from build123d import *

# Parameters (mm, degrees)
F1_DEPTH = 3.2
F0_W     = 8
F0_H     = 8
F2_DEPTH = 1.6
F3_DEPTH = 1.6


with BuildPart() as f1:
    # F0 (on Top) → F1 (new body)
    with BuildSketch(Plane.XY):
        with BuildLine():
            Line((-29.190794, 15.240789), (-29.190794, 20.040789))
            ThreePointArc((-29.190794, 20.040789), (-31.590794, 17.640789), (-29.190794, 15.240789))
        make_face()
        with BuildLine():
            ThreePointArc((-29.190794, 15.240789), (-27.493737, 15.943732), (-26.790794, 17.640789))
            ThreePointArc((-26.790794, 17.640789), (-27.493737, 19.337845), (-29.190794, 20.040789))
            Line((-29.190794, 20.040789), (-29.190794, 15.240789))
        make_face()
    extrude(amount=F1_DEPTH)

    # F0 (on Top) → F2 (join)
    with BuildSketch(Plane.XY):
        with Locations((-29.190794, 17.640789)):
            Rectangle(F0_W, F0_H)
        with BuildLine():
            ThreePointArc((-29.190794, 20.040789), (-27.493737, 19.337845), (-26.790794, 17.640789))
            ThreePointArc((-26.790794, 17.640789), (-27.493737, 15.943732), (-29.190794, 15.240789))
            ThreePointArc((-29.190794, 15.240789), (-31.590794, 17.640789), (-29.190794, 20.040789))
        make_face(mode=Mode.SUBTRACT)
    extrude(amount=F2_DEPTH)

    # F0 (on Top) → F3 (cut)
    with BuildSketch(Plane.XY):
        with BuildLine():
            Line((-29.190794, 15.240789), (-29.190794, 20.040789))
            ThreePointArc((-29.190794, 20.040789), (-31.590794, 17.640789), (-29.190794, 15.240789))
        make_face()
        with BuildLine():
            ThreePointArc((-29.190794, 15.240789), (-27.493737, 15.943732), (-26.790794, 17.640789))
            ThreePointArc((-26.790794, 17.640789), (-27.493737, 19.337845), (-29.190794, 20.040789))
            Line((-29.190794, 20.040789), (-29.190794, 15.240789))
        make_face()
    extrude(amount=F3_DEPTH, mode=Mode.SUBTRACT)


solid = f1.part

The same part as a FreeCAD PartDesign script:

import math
import FreeCAD as App
import Part
import Sketcher
Q = App.Units.Quantity


def add_polygon(sketch, points):
    """Adds a closed chain of lines whose ends are joined by coincident constraints."""
    first, n = sketch.GeometryCount, len(points)
    for a, b in zip(points, points[1:] + points[:1]):
        sketch.addGeometry(Part.LineSegment(App.Vector(*a, 0), App.Vector(*b, 0)), False)
    for i in range(n):
        sketch.addConstraint(Sketcher.Constraint("Coincident", first + i, 2, first + (i + 1) % n, 1))

doc = App.newDocument("Part")
params = doc.addObject("Spreadsheet::Sheet", "Params")
for row, (alias, value) in enumerate([
    ("sketch1_radius", "2.4 mm"),
    ("pad1_length", "3.2 mm"),
    ("sketch2_radius", "2.4 mm"),
    ("sketch2_width", "8 mm"),
    ("pad2_length", "1.6 mm"),
    ("sketch3_radius", "2.4 mm"),
    ("pocket1_length", "1.6 mm"),
], start=1):
    params.set(f"A{row}", alias)
    params.set(f"B{row}", "=" + value)
    params.setAlias(f"B{row}", alias)

body = doc.addObject("PartDesign::Body", "Body")
body.AllowCompound = True

# Sketch on XY plane
sketch1 = body.newObject("Sketcher::SketchObject", "Sketch")
sketch1.AttachmentSupport = (doc.getObject("XY_Plane"), [""])
sketch1.MapMode = "FlatFace"
sketch1.addGeometry(Part.ArcOfCircle(Part.Circle(App.Vector(-29.190794, 17.640789, 0), App.Vector(0, 0, 1), 2.4), math.radians(90), math.radians(270)), False)
sketch1.addGeometry(Part.ArcOfCircle(Part.Circle(App.Vector(-29.190792, 17.640787, 0), App.Vector(0, 0, 1), 2.399998), math.radians(-90.000059), math.radians(0.000059)), False)
sketch1.addGeometry(Part.ArcOfCircle(Part.Circle(App.Vector(-29.190793, 17.64079, 0), App.Vector(0, 0, 1), 2.399999), math.radians(-0.000018), math.radians(90.000018)), False)
sketch1.addConstraint(Sketcher.Constraint("Tangent", 0, 2, 1, 1))
sketch1.addConstraint(Sketcher.Constraint("Tangent", 1, 2, 2, 1))
sketch1.addConstraint(Sketcher.Constraint("Tangent", 2, 2, 0, 1))
sketch1.addConstraint(Sketcher.Constraint("Horizontal", 2, 3, 1, 2))
sketch1.addConstraint(Sketcher.Constraint("Vertical", 2, 3, 0, 2))
sketch1.addConstraint(Sketcher.Constraint("Vertical", 0, 2, 2, 2))
sketch1.addConstraint(Sketcher.Constraint("Radius", 0, Q("2.4 mm")))
sketch1.addConstraint(Sketcher.Constraint("DistanceY", -1, 1, 0, 3, Q("17.640789 mm")))
sketch1.addConstraint(Sketcher.Constraint("DistanceX", 1, 3, -1, 1, Q("29.190792 mm")))
sketch1.setExpression("Constraints[6]", "Params.sketch1_radius")
pad1 = body.newObject("PartDesign::Pad", "Pad")
pad1.Profile = sketch1
pad1.setExpression("Length", "Params.pad1_length")

# Sketch on XY plane
sketch2 = body.newObject("Sketcher::SketchObject", "Sketch001")
sketch2.AttachmentSupport = (doc.getObject("XY_Plane"), [""])
sketch2.MapMode = "FlatFace"
add_polygon(sketch2, [(-33.190794, 21.640789), (-33.190794, 13.640789), (-25.190794, 13.640789), (-25.190794, 21.640789)])  # lines 0-3
sketch2.addGeometry(Part.ArcOfCircle(Part.Circle(App.Vector(-29.190794, 17.640789, 0), App.Vector(0, 0, 1), 2.4), math.radians(90), math.radians(270)), False)  # 4
sketch2.addGeometry(Part.ArcOfCircle(Part.Circle(App.Vector(-29.190793, 17.64079, 0), App.Vector(0, 0, 1), 2.399999), math.radians(-0.000018), math.radians(90.000018)), False)  # 5
sketch2.addGeometry(Part.ArcOfCircle(Part.Circle(App.Vector(-29.190792, 17.640787, 0), App.Vector(0, 0, 1), 2.399998), math.radians(-90.000059), math.radians(0.000059)), False)  # 6
sketch2.addConstraint(Sketcher.Constraint("Tangent", 4, 1, 5, 2))
sketch2.addConstraint(Sketcher.Constraint("Tangent", 5, 1, 6, 2))
sketch2.addConstraint(Sketcher.Constraint("Tangent", 6, 1, 4, 2))
sketch2.addConstraint(Sketcher.Constraint("Vertical", 0))
sketch2.addConstraint(Sketcher.Constraint("Horizontal", 1))
sketch2.addConstraint(Sketcher.Constraint("Vertical", 2))
sketch2.addConstraint(Sketcher.Constraint("Horizontal", 3))
sketch2.addConstraint(Sketcher.Constraint("Horizontal", 4, 3, 5, 1))
sketch2.addConstraint(Sketcher.Constraint("Vertical", 5, 3, 4, 1))
sketch2.addConstraint(Sketcher.Constraint("Vertical", 4, 1, 6, 1))
sketch2.addConstraint(Sketcher.Constraint("Equal", 3, 0))
sketch2.addConstraint(Sketcher.Constraint("Radius", 4, Q("2.4 mm")))
sketch2.addConstraint(Sketcher.Constraint("DistanceX", 1, 1, 1, 2, Q("8 mm")))
sketch2.addConstraint(Sketcher.Constraint("DistanceX", 0, 2, 4, 3, Q("4 mm")))
sketch2.addConstraint(Sketcher.Constraint("DistanceY", 0, 2, 4, 3, Q("4 mm")))
sketch2.addConstraint(Sketcher.Constraint("DistanceY", -1, 1, 4, 3, Q("17.640789 mm")))
sketch2.addConstraint(Sketcher.Constraint("DistanceX", 6, 3, -1, 1, Q("29.190792 mm")))
sketch2.setExpression("Constraints[15]", "Params.sketch2_radius")
sketch2.setExpression("Constraints[16]", "Params.sketch2_width")
pad2 = body.newObject("PartDesign::Pad", "Pad001")
pad2.Profile = sketch2
pad2.setExpression("Length", "Params.pad2_length")

# Sketch on XY plane
sketch3 = body.newObject("Sketcher::SketchObject", "Sketch002")
sketch3.AttachmentSupport = (doc.getObject("XY_Plane"), [""])
sketch3.MapMode = "FlatFace"
sketch3.addGeometry(Part.ArcOfCircle(Part.Circle(App.Vector(-29.190794, 17.640789, 0), App.Vector(0, 0, 1), 2.4), math.radians(90), math.radians(270)), False)
sketch3.addGeometry(Part.ArcOfCircle(Part.Circle(App.Vector(-29.190792, 17.640787, 0), App.Vector(0, 0, 1), 2.399998), math.radians(-90.000059), math.radians(0.000059)), False)
sketch3.addGeometry(Part.ArcOfCircle(Part.Circle(App.Vector(-29.190793, 17.64079, 0), App.Vector(0, 0, 1), 2.399999), math.radians(-0.000018), math.radians(90.000018)), False)
sketch3.addConstraint(Sketcher.Constraint("Tangent", 0, 2, 1, 1))
sketch3.addConstraint(Sketcher.Constraint("Tangent", 1, 2, 2, 1))
sketch3.addConstraint(Sketcher.Constraint("Tangent", 2, 2, 0, 1))
sketch3.addConstraint(Sketcher.Constraint("Horizontal", 2, 3, 1, 2))
sketch3.addConstraint(Sketcher.Constraint("Vertical", 2, 3, 0, 2))
sketch3.addConstraint(Sketcher.Constraint("Vertical", 0, 2, 2, 2))
sketch3.addConstraint(Sketcher.Constraint("Radius", 0, Q("2.4 mm")))
sketch3.addConstraint(Sketcher.Constraint("DistanceY", -1, 1, 0, 3, Q("17.640789 mm")))
sketch3.addConstraint(Sketcher.Constraint("DistanceX", 1, 3, -1, 1, Q("29.190792 mm")))
sketch3.setExpression("Constraints[6]", "Params.sketch3_radius")
pocket1 = body.newObject("PartDesign::Pocket", "Pocket")
pocket1.Profile = sketch3
pocket1.setExpression("Length", "Params.pocket1_length")
pocket1.Reversed = True

doc.recompute()
